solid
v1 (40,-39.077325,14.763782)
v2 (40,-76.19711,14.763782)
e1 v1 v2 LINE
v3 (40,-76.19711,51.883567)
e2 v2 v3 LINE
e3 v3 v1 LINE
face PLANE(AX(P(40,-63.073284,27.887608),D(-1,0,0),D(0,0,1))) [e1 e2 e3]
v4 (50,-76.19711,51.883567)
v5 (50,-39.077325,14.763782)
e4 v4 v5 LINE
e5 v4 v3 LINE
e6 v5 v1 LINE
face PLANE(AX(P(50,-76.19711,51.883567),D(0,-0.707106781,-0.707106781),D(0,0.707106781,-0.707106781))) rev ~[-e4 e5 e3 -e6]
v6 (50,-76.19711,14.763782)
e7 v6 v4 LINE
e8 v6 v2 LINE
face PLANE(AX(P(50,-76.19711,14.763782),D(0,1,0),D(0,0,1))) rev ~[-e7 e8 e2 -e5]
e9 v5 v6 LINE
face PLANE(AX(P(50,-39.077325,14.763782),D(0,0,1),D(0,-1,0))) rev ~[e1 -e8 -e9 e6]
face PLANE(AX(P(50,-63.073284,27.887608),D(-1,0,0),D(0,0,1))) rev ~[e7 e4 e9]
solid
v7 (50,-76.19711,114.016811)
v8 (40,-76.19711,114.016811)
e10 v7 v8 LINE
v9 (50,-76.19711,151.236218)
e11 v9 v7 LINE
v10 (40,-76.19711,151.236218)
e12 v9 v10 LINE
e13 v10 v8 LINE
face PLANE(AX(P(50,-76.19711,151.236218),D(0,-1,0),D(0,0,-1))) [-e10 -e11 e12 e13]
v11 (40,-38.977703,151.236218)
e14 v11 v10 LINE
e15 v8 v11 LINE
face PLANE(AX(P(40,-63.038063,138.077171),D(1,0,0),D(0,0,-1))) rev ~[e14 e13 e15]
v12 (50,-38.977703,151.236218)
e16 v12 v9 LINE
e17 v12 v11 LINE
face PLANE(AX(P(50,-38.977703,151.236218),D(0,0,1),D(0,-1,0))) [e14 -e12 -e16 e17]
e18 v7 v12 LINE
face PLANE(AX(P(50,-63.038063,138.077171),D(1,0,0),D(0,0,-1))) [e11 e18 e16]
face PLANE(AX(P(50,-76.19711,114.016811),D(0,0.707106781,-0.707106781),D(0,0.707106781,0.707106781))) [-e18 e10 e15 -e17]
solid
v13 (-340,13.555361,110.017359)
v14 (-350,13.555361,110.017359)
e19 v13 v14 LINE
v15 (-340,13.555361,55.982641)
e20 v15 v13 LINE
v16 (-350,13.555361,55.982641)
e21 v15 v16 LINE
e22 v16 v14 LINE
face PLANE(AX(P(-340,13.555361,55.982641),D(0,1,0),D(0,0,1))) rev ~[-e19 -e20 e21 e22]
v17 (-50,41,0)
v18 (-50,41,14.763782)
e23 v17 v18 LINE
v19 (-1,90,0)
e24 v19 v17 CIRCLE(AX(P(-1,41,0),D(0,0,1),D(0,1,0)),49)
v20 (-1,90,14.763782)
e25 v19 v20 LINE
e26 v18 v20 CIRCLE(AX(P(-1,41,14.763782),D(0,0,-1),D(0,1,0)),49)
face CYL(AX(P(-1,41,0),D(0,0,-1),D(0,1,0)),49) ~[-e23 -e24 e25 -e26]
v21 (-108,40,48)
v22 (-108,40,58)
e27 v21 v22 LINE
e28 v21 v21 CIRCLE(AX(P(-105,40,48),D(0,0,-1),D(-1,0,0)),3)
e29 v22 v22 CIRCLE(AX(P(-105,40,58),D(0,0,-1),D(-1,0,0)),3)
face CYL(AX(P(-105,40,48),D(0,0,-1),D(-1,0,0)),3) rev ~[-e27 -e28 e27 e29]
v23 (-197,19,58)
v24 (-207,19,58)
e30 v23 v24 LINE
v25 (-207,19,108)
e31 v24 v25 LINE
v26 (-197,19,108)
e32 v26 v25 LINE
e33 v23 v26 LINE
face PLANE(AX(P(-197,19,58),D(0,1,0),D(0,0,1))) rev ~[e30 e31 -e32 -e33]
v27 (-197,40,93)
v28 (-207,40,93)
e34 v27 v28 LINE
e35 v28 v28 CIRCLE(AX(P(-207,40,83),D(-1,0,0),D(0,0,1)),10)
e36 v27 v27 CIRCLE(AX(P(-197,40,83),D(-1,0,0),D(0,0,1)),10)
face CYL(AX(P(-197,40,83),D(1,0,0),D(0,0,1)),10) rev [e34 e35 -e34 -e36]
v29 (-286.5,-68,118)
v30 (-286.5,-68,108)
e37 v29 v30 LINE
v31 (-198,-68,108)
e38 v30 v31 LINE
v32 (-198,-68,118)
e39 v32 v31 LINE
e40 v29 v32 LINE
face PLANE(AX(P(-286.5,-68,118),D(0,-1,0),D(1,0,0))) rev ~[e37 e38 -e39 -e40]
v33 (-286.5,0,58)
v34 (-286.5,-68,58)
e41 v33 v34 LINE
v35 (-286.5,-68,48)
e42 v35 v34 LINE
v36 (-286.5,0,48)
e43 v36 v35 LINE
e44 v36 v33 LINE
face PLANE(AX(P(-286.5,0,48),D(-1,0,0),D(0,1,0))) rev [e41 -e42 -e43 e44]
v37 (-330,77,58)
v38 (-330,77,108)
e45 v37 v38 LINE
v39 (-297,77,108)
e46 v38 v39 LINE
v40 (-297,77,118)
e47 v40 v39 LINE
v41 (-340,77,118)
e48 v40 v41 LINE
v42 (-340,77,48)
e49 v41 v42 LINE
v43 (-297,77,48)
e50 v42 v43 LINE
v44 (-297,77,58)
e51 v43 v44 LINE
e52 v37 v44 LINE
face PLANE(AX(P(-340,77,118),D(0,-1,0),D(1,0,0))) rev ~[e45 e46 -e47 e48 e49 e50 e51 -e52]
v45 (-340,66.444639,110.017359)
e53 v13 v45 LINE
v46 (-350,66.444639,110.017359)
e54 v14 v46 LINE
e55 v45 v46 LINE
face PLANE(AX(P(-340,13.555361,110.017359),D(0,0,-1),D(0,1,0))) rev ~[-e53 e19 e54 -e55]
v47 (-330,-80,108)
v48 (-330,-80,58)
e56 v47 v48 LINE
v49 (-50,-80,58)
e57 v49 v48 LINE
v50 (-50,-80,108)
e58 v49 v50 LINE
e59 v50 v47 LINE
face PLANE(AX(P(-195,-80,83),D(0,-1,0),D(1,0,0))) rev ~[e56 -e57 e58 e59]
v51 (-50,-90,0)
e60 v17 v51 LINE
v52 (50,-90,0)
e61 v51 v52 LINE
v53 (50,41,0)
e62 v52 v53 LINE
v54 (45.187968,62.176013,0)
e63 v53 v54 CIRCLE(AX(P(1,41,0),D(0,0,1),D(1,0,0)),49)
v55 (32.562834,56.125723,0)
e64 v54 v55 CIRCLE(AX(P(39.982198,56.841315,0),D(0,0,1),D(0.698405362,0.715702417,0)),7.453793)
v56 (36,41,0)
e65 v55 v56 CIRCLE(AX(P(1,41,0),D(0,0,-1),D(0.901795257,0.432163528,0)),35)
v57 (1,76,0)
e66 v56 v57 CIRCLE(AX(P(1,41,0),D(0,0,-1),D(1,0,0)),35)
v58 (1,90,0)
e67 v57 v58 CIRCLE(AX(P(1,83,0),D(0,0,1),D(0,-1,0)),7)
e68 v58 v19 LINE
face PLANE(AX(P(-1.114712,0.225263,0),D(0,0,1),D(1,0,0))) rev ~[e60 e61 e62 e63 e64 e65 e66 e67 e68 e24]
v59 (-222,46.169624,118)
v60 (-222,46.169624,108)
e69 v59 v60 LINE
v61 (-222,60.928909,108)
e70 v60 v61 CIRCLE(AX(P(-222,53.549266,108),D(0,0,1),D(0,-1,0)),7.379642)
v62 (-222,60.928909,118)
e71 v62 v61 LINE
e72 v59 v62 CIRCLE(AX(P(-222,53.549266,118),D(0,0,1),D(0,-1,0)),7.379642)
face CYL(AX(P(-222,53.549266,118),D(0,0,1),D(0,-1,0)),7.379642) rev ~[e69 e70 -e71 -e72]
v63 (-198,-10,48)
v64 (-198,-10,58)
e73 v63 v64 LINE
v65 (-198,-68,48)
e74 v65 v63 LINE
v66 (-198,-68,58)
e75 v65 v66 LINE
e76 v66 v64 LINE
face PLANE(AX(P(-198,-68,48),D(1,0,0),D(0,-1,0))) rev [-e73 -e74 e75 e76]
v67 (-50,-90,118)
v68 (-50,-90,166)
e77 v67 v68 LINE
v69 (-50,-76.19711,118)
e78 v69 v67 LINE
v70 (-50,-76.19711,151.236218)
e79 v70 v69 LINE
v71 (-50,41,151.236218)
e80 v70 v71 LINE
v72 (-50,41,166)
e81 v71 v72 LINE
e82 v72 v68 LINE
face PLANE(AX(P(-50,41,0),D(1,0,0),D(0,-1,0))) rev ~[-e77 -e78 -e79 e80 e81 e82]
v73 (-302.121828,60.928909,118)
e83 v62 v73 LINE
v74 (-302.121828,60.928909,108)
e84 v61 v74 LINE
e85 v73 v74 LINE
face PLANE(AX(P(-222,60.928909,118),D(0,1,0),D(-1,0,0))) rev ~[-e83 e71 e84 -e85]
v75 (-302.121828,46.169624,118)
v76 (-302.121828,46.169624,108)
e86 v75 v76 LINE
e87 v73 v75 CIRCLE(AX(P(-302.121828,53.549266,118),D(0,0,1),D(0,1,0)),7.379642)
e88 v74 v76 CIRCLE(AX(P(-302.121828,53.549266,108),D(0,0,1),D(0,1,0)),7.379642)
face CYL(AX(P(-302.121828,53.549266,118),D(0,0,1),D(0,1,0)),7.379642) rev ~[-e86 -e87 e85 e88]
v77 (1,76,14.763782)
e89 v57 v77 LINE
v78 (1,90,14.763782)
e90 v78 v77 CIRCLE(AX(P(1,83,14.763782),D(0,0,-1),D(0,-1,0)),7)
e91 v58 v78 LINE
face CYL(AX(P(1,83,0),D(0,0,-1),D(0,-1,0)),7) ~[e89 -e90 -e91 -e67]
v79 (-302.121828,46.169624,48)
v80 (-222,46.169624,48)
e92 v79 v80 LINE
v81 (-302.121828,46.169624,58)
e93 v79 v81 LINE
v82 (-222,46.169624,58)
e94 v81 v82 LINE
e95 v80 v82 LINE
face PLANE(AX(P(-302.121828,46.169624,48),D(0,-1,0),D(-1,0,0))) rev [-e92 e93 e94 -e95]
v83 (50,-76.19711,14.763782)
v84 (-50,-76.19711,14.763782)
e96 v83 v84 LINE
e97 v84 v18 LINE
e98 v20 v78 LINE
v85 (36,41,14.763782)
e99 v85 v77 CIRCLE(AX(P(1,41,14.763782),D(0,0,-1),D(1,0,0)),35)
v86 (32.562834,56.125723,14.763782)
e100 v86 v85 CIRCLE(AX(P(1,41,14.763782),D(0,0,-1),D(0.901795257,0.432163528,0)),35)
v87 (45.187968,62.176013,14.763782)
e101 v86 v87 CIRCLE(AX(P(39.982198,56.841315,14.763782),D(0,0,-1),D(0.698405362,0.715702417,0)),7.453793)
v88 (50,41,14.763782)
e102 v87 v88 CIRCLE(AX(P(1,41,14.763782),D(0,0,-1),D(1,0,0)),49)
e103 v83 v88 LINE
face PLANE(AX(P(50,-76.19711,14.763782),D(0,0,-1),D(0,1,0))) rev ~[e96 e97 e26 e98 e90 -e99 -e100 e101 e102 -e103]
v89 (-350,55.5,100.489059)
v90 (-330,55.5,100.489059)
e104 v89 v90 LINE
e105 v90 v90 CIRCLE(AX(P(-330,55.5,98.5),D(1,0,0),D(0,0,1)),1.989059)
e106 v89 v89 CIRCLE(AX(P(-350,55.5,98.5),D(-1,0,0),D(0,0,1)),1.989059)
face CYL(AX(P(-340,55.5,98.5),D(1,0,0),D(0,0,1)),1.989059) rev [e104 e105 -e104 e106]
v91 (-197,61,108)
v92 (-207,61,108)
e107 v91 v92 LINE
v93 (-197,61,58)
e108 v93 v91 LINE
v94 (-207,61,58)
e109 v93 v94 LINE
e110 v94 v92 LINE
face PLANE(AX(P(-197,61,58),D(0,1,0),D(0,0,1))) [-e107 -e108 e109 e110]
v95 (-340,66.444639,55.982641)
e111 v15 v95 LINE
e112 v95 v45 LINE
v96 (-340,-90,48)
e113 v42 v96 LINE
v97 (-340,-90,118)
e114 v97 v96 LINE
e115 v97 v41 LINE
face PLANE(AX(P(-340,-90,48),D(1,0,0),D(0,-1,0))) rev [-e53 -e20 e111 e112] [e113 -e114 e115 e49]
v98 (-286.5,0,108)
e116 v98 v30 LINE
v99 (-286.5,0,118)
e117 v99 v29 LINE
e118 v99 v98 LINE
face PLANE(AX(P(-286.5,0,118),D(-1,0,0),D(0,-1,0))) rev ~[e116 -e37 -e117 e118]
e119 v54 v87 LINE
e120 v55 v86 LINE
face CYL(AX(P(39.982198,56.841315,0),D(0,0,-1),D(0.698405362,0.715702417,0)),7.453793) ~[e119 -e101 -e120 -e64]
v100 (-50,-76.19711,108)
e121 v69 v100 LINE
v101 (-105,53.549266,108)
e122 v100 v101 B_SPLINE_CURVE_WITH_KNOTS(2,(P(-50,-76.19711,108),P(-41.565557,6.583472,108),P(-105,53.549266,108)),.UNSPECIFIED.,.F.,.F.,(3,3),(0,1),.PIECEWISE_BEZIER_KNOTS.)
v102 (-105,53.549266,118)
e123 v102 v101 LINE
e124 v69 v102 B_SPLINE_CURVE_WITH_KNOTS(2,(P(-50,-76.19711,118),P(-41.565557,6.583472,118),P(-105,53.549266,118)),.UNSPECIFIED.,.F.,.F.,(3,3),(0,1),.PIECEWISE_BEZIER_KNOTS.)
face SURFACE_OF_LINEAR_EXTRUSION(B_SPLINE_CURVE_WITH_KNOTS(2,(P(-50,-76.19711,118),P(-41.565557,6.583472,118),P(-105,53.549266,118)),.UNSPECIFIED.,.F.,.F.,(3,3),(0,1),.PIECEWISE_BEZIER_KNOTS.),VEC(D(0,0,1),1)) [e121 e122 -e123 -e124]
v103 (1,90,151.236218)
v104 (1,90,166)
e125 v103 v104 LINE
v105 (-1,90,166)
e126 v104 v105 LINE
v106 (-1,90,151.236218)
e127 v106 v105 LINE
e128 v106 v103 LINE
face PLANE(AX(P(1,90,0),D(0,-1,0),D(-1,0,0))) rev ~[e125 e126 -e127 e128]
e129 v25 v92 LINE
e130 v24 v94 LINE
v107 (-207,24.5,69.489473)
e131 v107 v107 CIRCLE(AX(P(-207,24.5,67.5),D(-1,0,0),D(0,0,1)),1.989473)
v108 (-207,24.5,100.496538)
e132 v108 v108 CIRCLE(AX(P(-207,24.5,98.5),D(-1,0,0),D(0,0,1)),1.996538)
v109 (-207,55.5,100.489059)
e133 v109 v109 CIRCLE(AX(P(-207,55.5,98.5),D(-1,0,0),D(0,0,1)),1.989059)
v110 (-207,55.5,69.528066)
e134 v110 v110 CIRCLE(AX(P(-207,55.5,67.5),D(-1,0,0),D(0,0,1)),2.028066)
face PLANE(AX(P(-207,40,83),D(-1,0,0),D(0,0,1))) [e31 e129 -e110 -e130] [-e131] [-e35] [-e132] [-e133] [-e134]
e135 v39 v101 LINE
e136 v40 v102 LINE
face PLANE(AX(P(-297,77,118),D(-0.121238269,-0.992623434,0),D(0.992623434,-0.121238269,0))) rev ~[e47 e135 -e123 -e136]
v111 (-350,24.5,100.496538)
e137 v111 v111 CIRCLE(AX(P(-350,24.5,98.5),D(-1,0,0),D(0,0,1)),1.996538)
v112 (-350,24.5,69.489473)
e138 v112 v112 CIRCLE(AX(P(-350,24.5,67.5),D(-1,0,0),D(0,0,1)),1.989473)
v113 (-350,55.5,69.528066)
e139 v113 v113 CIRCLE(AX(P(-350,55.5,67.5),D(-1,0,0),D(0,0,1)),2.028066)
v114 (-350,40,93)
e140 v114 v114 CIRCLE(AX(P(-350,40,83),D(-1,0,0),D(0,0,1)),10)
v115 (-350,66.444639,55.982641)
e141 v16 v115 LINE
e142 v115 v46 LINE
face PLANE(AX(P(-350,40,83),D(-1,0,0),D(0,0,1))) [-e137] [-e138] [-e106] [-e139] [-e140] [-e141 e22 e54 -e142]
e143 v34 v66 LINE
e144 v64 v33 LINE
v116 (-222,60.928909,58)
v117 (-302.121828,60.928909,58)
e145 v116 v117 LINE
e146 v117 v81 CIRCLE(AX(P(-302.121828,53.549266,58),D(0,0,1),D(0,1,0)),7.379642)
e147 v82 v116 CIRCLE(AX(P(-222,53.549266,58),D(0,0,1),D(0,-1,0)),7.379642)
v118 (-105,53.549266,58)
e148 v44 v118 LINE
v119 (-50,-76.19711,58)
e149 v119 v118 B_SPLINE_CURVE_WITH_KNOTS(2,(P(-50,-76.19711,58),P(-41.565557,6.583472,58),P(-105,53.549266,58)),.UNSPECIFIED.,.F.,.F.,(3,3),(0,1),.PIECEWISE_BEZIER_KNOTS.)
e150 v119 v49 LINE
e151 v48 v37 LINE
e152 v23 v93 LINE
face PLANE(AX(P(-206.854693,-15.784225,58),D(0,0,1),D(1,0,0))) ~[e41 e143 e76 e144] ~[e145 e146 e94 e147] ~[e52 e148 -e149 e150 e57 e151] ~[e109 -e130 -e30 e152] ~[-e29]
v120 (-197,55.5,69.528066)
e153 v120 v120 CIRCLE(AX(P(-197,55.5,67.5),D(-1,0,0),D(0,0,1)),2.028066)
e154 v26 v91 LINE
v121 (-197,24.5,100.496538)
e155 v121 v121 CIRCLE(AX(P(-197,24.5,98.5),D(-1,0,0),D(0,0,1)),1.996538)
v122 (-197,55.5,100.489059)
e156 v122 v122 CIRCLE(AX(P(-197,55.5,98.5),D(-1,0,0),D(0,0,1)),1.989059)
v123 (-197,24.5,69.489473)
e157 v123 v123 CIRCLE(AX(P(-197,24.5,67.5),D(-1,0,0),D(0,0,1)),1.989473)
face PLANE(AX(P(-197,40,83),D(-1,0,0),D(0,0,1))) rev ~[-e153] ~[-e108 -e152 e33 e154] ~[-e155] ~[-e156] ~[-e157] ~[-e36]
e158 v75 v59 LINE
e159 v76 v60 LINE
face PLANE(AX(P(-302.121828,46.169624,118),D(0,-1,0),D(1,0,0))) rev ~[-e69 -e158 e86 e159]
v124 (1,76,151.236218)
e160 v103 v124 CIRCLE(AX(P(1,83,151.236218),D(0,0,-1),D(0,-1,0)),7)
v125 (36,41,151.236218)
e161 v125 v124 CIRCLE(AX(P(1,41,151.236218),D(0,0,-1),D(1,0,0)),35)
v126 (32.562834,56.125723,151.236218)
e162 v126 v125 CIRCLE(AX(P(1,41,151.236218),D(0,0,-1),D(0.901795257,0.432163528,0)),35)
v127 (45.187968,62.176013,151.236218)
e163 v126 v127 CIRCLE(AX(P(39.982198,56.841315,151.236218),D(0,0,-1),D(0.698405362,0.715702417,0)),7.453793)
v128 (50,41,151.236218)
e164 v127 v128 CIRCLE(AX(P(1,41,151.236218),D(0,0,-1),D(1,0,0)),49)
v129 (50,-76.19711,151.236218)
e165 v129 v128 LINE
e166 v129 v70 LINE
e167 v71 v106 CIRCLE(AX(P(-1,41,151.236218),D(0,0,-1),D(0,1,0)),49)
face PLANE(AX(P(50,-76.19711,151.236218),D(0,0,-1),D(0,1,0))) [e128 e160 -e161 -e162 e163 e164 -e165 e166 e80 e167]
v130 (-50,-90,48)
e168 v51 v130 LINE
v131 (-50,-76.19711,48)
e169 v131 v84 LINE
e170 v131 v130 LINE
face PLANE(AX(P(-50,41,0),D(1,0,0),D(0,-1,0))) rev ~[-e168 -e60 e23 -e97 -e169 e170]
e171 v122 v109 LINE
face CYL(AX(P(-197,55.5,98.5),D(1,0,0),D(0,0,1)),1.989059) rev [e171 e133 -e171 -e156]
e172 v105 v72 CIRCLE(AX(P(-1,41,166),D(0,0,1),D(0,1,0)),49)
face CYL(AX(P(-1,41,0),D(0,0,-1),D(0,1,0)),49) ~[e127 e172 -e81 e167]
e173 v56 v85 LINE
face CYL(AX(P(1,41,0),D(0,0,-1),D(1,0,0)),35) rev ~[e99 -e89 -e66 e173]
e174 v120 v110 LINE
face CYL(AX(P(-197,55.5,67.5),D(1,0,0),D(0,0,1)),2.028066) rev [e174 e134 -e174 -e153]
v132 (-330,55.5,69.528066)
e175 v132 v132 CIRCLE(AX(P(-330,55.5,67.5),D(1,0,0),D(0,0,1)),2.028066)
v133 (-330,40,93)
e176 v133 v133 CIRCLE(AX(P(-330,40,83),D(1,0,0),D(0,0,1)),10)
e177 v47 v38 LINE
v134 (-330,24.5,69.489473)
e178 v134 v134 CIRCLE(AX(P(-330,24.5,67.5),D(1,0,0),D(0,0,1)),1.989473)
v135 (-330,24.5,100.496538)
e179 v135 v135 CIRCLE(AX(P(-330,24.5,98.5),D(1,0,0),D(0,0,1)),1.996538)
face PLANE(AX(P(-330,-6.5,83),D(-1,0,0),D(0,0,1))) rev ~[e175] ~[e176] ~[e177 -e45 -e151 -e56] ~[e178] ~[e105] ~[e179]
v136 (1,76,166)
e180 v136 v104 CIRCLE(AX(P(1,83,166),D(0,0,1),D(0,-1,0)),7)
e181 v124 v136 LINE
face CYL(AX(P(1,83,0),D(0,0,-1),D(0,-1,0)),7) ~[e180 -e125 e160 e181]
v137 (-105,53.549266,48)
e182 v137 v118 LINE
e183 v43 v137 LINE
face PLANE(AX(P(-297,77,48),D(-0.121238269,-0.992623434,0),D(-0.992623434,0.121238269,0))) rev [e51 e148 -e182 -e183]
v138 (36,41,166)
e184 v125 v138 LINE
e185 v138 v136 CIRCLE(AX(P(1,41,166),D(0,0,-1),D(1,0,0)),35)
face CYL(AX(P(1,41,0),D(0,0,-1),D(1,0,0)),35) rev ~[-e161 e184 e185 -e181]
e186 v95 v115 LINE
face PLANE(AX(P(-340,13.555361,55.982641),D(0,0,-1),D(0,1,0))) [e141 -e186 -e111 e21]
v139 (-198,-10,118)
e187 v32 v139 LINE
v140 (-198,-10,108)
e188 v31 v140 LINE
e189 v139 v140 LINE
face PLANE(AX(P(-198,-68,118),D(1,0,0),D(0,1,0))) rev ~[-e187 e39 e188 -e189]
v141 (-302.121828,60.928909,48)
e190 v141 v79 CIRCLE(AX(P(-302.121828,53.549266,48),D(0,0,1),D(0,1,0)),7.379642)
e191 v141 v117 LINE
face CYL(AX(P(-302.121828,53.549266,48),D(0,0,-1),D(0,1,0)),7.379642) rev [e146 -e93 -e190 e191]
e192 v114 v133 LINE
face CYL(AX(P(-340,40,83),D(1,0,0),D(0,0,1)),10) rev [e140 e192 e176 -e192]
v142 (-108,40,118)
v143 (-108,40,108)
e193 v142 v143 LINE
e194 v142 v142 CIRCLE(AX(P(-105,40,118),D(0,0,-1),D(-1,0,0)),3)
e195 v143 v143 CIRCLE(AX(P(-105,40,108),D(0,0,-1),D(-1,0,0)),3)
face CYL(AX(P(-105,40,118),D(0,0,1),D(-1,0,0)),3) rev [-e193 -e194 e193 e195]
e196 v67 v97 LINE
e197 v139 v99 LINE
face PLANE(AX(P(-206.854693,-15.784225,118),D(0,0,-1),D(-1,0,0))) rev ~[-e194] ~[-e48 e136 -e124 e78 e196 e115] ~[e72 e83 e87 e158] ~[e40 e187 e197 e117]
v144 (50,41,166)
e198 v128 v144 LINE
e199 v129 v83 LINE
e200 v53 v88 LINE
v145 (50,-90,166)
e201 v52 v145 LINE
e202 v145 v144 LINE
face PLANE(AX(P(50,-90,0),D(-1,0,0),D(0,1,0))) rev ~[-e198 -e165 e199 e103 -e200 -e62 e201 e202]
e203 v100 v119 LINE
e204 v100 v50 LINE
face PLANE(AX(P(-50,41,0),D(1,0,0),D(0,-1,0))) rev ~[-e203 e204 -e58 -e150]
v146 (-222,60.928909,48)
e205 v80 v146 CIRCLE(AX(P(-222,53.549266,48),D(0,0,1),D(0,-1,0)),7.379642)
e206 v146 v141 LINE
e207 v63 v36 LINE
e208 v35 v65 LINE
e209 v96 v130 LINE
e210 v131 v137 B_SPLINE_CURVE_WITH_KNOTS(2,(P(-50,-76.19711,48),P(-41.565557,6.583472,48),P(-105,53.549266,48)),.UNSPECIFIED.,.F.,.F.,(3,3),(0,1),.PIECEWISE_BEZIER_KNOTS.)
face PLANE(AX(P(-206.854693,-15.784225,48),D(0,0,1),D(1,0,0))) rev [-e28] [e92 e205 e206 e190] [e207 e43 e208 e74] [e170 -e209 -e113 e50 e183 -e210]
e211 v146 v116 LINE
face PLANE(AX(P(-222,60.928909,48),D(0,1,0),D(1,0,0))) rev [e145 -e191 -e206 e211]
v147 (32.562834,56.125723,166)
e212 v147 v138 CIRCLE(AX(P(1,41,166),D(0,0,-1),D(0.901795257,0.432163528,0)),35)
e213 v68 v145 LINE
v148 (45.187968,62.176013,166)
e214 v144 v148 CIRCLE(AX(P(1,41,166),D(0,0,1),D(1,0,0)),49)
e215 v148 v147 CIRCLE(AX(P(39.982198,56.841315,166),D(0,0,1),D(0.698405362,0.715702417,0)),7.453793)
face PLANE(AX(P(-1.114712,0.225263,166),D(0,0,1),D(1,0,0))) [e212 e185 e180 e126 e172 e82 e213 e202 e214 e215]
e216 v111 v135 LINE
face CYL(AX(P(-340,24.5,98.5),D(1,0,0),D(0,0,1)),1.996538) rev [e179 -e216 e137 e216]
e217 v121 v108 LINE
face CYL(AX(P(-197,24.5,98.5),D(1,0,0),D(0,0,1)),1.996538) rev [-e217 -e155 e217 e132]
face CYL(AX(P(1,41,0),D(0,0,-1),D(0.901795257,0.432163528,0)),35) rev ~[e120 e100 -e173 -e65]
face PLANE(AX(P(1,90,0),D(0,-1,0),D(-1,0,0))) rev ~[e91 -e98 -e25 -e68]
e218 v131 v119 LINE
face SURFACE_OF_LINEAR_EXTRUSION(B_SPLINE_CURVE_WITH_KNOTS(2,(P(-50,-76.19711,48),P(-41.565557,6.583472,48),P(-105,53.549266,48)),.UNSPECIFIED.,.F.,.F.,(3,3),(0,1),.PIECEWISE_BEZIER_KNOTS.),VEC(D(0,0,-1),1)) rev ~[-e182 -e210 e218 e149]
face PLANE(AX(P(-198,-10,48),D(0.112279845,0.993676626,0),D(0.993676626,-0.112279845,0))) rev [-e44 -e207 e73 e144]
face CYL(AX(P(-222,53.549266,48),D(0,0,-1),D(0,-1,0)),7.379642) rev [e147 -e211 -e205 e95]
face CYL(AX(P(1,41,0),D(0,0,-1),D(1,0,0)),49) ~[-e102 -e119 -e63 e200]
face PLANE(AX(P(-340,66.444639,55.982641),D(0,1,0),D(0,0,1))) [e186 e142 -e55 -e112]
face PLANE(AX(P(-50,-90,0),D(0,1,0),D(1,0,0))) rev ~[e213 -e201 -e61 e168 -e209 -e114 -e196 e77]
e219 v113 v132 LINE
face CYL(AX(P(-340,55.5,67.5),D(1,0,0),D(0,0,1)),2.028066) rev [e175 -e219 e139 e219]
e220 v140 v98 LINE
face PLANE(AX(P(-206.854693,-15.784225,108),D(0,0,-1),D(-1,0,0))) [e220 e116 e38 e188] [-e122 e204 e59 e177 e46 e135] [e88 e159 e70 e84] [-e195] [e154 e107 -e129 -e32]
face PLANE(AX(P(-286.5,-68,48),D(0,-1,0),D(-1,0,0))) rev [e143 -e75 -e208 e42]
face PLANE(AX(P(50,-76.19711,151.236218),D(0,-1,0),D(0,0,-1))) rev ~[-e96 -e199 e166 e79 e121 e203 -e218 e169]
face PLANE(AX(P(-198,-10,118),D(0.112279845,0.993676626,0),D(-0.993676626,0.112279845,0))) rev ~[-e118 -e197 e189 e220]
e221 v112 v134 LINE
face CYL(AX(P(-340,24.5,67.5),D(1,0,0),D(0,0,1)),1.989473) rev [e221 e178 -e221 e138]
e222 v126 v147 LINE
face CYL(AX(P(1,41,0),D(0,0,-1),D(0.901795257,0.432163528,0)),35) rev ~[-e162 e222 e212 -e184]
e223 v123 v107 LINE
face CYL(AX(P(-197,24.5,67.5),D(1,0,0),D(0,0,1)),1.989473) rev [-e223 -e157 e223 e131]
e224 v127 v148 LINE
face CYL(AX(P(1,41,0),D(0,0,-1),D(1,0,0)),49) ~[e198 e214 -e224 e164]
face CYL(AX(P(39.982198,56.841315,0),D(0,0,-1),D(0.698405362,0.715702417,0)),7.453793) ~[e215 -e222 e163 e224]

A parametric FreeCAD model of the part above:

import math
import FreeCAD as App
import Part
import Sketcher
from FreeCAD import Vector

doc = App.newDocument("Part")
params = doc.addObject("Spreadsheet::Sheet", "Params")
for row, (alias, value) in enumerate([
    ("sketch1_radius", "49 mm"),
    ("sketch1_radius2", "35 mm"),
    ("sketch1_width", "100 mm"),
    ("sketch1_height", "131 mm"),
    ("pad1_length", "166 mm"),
    ("sketch3_diameter", "6 mm"),
    ("sketch3_width", "43 mm"),
    ("sketch3_width2", "290 mm"),
    ("sketch3_height", "167 mm"),
    ("sketch3_height2", "58 mm"),
    ("pad2_length", "10 mm"),
    ("sketch4_width", "290 mm"),
    ("sketch4_height", "70 mm"),
    ("pad3_length", "10 mm"),
    ("sketch5_width", "167 mm"),
    ("sketch5_height", "70 mm"),
    ("pad4_length", "10 mm"),
    ("sketch6_diameter", "20 mm"),
    ("sketch6_width", "42 mm"),
    ("sketch6_height", "50 mm"),
    ("pad5_length", "10 mm"),
    ("sketch7_diameter", "20 mm"),
    ("sketch8_diameter", "20 mm"),
    ("pad6_length", "10 mm"),
    ("pad7_length", "10 mm"),
    ("pad8_length", "10 mm"),
], start=1):
    params.set(f"A{row}", alias)
    params.set(f"B{row}", "=" + value)
    params.setAlias(f"B{row}", alias)

body = doc.addObject("PartDesign::Body", "Body")

sketch1 = doc.addObject("Sketcher::SketchObject", "Sketch")
body.addObject(sketch1)
sketch1.AttachmentSupport = (doc.XY_Plane, [""])
sketch1.MapMode = "FlatFace"
sketch1.addGeometry([
    Part.LineSegment(Vector(-50, -90, 0), Vector(50, -90, 0)),
    Part.LineSegment(Vector(50, -90, 0), Vector(50, 41, 0)),
    Part.ArcOfCircle(Part.Circle(Vector(1, 41, 0), Vector(0, 0, 1), 49), math.radians(0), math.radians(25.604942)),
    Part.ArcOfCircle(Part.Circle(Vector(39.982198, 56.841315, 0), Vector(0, 0, 1), 7.453793), math.radians(45.700794), math.radians(185.509089)),
    Part.ArcOfCircle(Part.Circle(Vector(1, 41, 0), Vector(0, 0, 1), 35), math.radians(0), math.radians(25.604942)),
    Part.ArcOfCircle(Part.Circle(Vector(1, 41, 0), Vector(0, 0, 1), 35), math.radians(90), math.radians(360)),
    Part.ArcOfCircle(Part.Circle(Vector(1, 83, 0), Vector(0, 0, 1), 7), math.radians(-90), math.radians(90)),
    Part.LineSegment(Vector(1, 90, 0), Vector(-1, 90, 0)),
    Part.ArcOfCircle(Part.Circle(Vector(-1, 41, 0), Vector(0, 0, 1), 49), math.radians(90), math.radians(180)),
    Part.LineSegment(Vector(-50, 41, 0), Vector(-50, -90, 0)),
], False)
sketch1.addConstraint([
    Sketcher.Constraint("Coincident", 0, 2, 1, 1),
    Sketcher.Constraint("Tangent", 1, 2, 2, 1),
    Sketcher.Constraint("Coincident", 2, 2, 3, 1),
    Sketcher.Constraint("Coincident", 3, 2, 4, 2),
    Sketcher.Constraint("Tangent", 4, 1, 5, 2),
    Sketcher.Constraint("Tangent", 5, 1, 6, 1),
    Sketcher.Constraint("Tangent", 6, 2, 7, 1),
    Sketcher.Constraint("Tangent", 7, 2, 8, 1),
    Sketcher.Constraint("Tangent", 8, 2, 9, 1),
    Sketcher.Constraint("Coincident", 9, 2, 0, 1),
    Sketcher.Constraint("Horizontal", 0),
    Sketcher.Constraint("Vertical", 1),
    Sketcher.Constraint("Horizontal", 7),
    Sketcher.Constraint("Vertical", 9),
    Sketcher.Constraint("Coincident", 4, 3, 2, 3),
    Sketcher.Constraint("Equal", 4, 5),
    Sketcher.Constraint("Equal", 2, 8),
    Sketcher.Constraint("Symmetric", 2, 3, 8, 3, -2),
    Sketcher.Constraint("Horizontal", 1, 2, 4, 1),
    Sketcher.Constraint("Vertical", 5, 3, 6, 3),
    Sketcher.Constraint("Radius", 2, 49.0),
    Sketcher.Constraint("Radius", 4, 35.0),
    Sketcher.Constraint("DistanceX", 0, 1, 0, 2, 100.0),
    Sketcher.Constraint("DistanceY", 1, 1, 1, 2, 131.0),
    Sketcher.Constraint("DistanceY", -1, 1, 2, 3, 41.0),
    Sketcher.Constraint("Radius", 3, 7.453793),
    Sketcher.Constraint("DistanceX", -1, 1, 3, 3, 39.982198),
    Sketcher.Constraint("DistanceY", 3, 3, 2, 2, 5.334698),
])
sketch1.setExpression("Constraints[20]", "Params.sketch1_radius")
sketch1.setExpression("Constraints[21]", "Params.sketch1_radius2")
sketch1.setExpression("Constraints[22]", "Params.sketch1_width")
sketch1.setExpression("Constraints[23]", "Params.sketch1_height")
pad1 = doc.addObject("PartDesign::Pad", "Pad")
body.addObject(pad1)
pad1.Profile = sketch1
pad1.setExpression("Length", "Params.pad1_length")

sketch2 = doc.addObject("Sketcher::SketchObject", "Sketch001")
body.addObject(sketch2)
sketch2.AttachmentSupport = (doc.YZ_Plane, [""])
sketch2.MapMode = "FlatFace"
sketch2.AttachmentOffset = App.Placement(Vector(0, 0, 50), App.Rotation())
sketch2.addGeometry([
    Part.LineSegment(Vector(256.19711, 151.236218, 0), Vector(-76.19711, 151.236218, 0)),
    Part.LineSegment(Vector(-76.19711, 151.236218, 0), Vector(-76.19711, 14.763782, 0)),
    Part.LineSegment(Vector(-76.19711, 14.763782, 0), Vector(256.19711, 14.763782, 0)),
    Part.LineSegment(Vector(256.19711, 14.763782, 0), Vector(256.19711, 151.236218, 0)),
], False)
sketch2.addConstraint([
    Sketcher.Constraint("Coincident", 0, 2, 1, 1),
    Sketcher.Constraint("Coincident", 1, 2, 2, 1),
    Sketcher.Constraint("Coincident", 2, 2, 3, 1),
    Sketcher.Constraint("Coincident", 3, 2, 0, 1),
    Sketcher.Constraint("Horizontal", 0),
    Sketcher.Constraint("Vertical", 1),
    Sketcher.Constraint("Horizontal", 2),
    Sketcher.Constraint("Vertical", 3),
    Sketcher.Constraint("DistanceX", 0, 2, 0, 1, 332.39422),
    Sketcher.Constraint("DistanceY", 1, 2, 1, 1, 136.472436),
    Sketcher.Constraint("DistanceX", 0, 2, -1, 1, 76.19711),
    Sketcher.Constraint("DistanceY", -1, 1, 0, 2, 151.236218),
])
pocket1 = doc.addObject("PartDesign::Pocket", "Pocket")
body.addObject(pocket1)
pocket1.Profile = sketch2
pocket1.Type = "ThroughAll"

sketch3 = doc.addObject("Sketcher::SketchObject", "Sketch002")
body.addObject(sketch3)
sketch3.AttachmentSupport = (doc.XY_Plane, [""])
sketch3.MapMode = "FlatFace"
sketch3.AttachmentOffset = App.Placement(Vector(0, 0, 118), App.Rotation())
sketch3.addGeometry([
    Part.LineSegment(Vector(-340, 77, 0), Vector(-297, 77, 0)),
    Part.LineSegment(Vector(-297, 77, 0), Vector(-105, 53.549266, 0)),
    Part.BSplineCurve([Vector(-50, -76.19711, 0), Vector(-41.565557, 6.583472, 0), Vector(-105, 53.549266, 0)], [3, 3], [0, 1], False, 2, [1, 1, 1], False),
    Part.LineSegment(Vector(-50, -76.19711, 0), Vector(-50, -90, 0)),
    Part.LineSegment(Vector(-50, -90, 0), Vector(-340, -90, 0)),
    Part.LineSegment(Vector(-340, -90, 0), Vector(-340, 77, 0)),
    Part.LineSegment(Vector(-286.5, -68, 0), Vector(-198, -68, 0)),
    Part.LineSegment(Vector(-198, -68, 0), Vector(-198, -10, 0)),
    Part.LineSegment(Vector(-198, -10, 0), Vector(-286.5, 0, 0)),
    Part.LineSegment(Vector(-286.5, 0, 0), Vector(-286.5, -68, 0)),
    Part.Circle(Vector(-105, 40, 0), Vector(0, 0, 1), 3),
    Part.LineSegment(Vector(-302.121828, 46.169624, 0), Vector(-222, 46.169624, 0)),
    Part.ArcOfCircle(Part.Circle(Vector(-222, 53.549266, 0), Vector(0, 0, 1), 7.379642), math.radians(-90), math.radians(90)),
    Part.LineSegment(Vector(-222, 60.928909, 0), Vector(-302.121828, 60.928909, 0)),
    Part.ArcOfCircle(Part.Circle(Vector(-302.121828, 53.549266, 0), Vector(0, 0, 1), 7.379642), math.radians(90), math.radians(270)),
], False)
sketch3.addConstraint([
    Sketcher.Constraint("Block", 2),
    Sketcher.Constraint("Coincident", 0, 2, 1, 1),
    Sketcher.Constraint("Coincident", 1, 2, 2, 2),
    Sketcher.Constraint("Coincident", 2, 1, 3, 1),
    Sketcher.Constraint("Coincident", 3, 2, 4, 1),
    Sketcher.Constraint("Coincident", 4, 2, 5, 1),
    Sketcher.Constraint("Coincident", 5, 2, 0, 1),
    Sketcher.Constraint("Coincident", 6, 2, 7, 1),
    Sketcher.Constraint("Coincident", 7, 2, 8, 1),
    Sketcher.Constraint("Coincident", 8, 2, 9, 1),
    Sketcher.Constraint("Coincident", 9, 2, 6, 1),
    Sketcher.Constraint("Tangent", 11, 2, 12, 1),
    Sketcher.Constraint("Tangent", 12, 2, 13, 1),
    Sketcher.Constraint("Tangent", 13, 2, 14, 1),
    Sketcher.Constraint("Tangent", 14, 2, 11, 1),
    Sketcher.Constraint("Horizontal", 0),
    Sketcher.Constraint("Vertical", 3),
    Sketcher.Constraint("Horizontal", 4),
    Sketcher.Constraint("Vertical", 5),
    Sketcher.Constraint("Horizontal", 6),
    Sketcher.Constraint("Vertical", 7),
    Sketcher.Constraint("Vertical", 9),
    Sketcher.Constraint("Horizontal", 11),
    Sketcher.Constraint("Horizontal", 13),
    Sketcher.Constraint("PointOnObject", 8, 2, -1),
    Sketcher.Constraint("Horizontal", 14, 3, 1, 2),
    Sketcher.Constraint("Vertical", 10, 3, 1, 2),
    Sketcher.Constraint("Diameter", 10, 6.0),
    Sketcher.Constraint("DistanceX", 0, 1, 0, 2, 43.0),
    Sketcher.Constraint("DistanceX", 4, 2, 4, 1, 290.0),
    Sketcher.Constraint("DistanceY", 5, 1, 5, 2, 167.0),
    Sketcher.Constraint("DistanceY", 7, 1, 7, 2, 58.0),
    Sketcher.Constraint("DistanceY", 9, 2, 9, 1, 68.0),
    Sketcher.Constraint("DistanceX", 6, 1, 6, 2, 88.5),
    Sketcher.Constraint("DistanceY", -1, 1, 10, 3, 40.0),
    Sketcher.Constraint("DistanceX", 12, 3, -1, 1, 222.0),
    Sketcher.Constraint("DistanceY", -1, 1, 0, 2, 77.0),
    Sketcher.Constraint("DistanceX", 6, 2, -1, 1, 198.0),
    Sketcher.Constraint("Radius", 12, 7.379642),
    Sketcher.Constraint("DistanceX", 11, 1, 11, 2, 80.121828),
])
sketch3.setExpression("Constraints[27]", "Params.sketch3_diameter")
sketch3.setExpression("Constraints[28]", "Params.sketch3_width")
sketch3.setExpression("Constraints[29]", "Params.sketch3_width2")
sketch3.setExpression("Constraints[30]", "Params.sketch3_height")
sketch3.setExpression("Constraints[31]", "Params.sketch3_height2")
pad2 = doc.addObject("PartDesign::Pad", "Pad001")
body.addObject(pad2)
pad2.Profile = sketch3
pad2.setExpression("Length", "Params.pad2_length")
pad2.Reversed = True
doc.recompute()

datumplane = doc.addObject("PartDesign::Plane", "DatumPlane")
body.addObject(datumplane)
datumplane.AttachmentSupport = (doc.XY_Plane, [""])
datumplane.MapMode = "FlatFace"
datumplane.AttachmentOffset = App.Placement(Vector(0, 0, 83), App.Rotation())
mirrored = doc.addObject("PartDesign::Mirrored", "Mirrored")
body.addObject(mirrored)
mirrored.Originals = [pad2]
mirrored.MirrorPlane = (datumplane, [""])
body.Tip = mirrored

sketch4 = doc.addObject("Sketcher::SketchObject", "Sketch003")
body.addObject(sketch4)
sketch4.AttachmentSupport = (doc.XZ_Plane, [""])
sketch4.MapMode = "FlatFace"
sketch4.AttachmentOffset = App.Placement(Vector(0, 0, 90), App.Rotation())
sketch4.addGeometry([
    Part.LineSegment(Vector(-340, 118, 0), Vector(-340, 48, 0)),
    Part.LineSegment(Vector(-340, 48, 0), Vector(-50, 48, 0)),
    Part.LineSegment(Vector(-50, 48, 0), Vector(-50, 118, 0)),
    Part.LineSegment(Vector(-50, 118, 0), Vector(-340, 118, 0)),
], False)
sketch4.addConstraint([
    Sketcher.Constraint("Coincident", 0, 2, 1, 1),
    Sketcher.Constraint("Coincident", 1, 2, 2, 1),
    Sketcher.Constraint("Coincident", 2, 2, 3, 1),
    Sketcher.Constraint("Coincident", 3, 2, 0, 1),
    Sketcher.Constraint("Vertical", 0),
    Sketcher.Constraint("Horizontal", 1),
    Sketcher.Constraint("Vertical", 2),
    Sketcher.Constraint("Horizontal", 3),
    Sketcher.Constraint("DistanceX", 1, 1, 1, 2, 290.0),
    Sketcher.Constraint("DistanceY", 0, 2, 0, 1, 70.0),
    Sketcher.Constraint("DistanceX", 0, 2, -1, 1, 340.0),
    Sketcher.Constraint("DistanceY", -1, 1, 0, 2, 48.0),
])
sketch4.setExpression("Constraints[8]", "Params.sketch4_width")
sketch4.setExpression("Constraints[9]", "Params.sketch4_height")
pad3 = doc.addObject("PartDesign::Pad", "Pad002")
body.addObject(pad3)
pad3.Profile = sketch4
pad3.setExpression("Length", "Params.pad3_length")
pad3.Reversed = True

sketch5 = doc.addObject("Sketcher::SketchObject", "Sketch004")
body.addObject(sketch5)
sketch5.AttachmentSupport = (doc.YZ_Plane, [""])
sketch5.MapMode = "FlatFace"
sketch5.AttachmentOffset = App.Placement(Vector(0, 0, -340), App.Rotation())
sketch5.addGeometry([
    Part.LineSegment(Vector(77, 48, 0), Vector(-90, 48, 0)),
    Part.LineSegment(Vector(-90, 48, 0), Vector(-90, 118, 0)),
    Part.LineSegment(Vector(-90, 118, 0), Vector(77, 118, 0)),
    Part.LineSegment(Vector(77, 118, 0), Vector(77, 48, 0)),
], False)
sketch5.addConstraint([
    Sketcher.Constraint("Coincident", 0, 2, 1, 1),
    Sketcher.Constraint("Coincident", 1, 2, 2, 1),
    Sketcher.Constraint("Coincident", 2, 2, 3, 1),
    Sketcher.Constraint("Coincident", 3, 2, 0, 1),
    Sketcher.Constraint("Horizontal", 0),
    Sketcher.Constraint("Vertical", 1),
    Sketcher.Constraint("Horizontal", 2),
    Sketcher.Constraint("Vertical", 3),
    Sketcher.Constraint("DistanceX", 0, 2, 0, 1, 167.0),
    Sketcher.Constraint("DistanceY", 1, 1, 1, 2, 70.0),
    Sketcher.Constraint("DistanceX", 0, 2, -1, 1, 90.0),
    Sketcher.Constraint("DistanceY", -1, 1, 0, 2, 48.0),
])
sketch5.setExpression("Constraints[8]", "Params.sketch5_width")
sketch5.setExpression("Constraints[9]", "Params.sketch5_height")
pad4 = doc.addObject("PartDesign::Pad", "Pad003")
body.addObject(pad4)
pad4.Profile = sketch5
pad4.setExpression("Length", "Params.pad4_length")

sketch6 = doc.addObject("Sketcher::SketchObject", "Sketch005")
body.addObject(sketch6)
sketch6.AttachmentSupport = (doc.YZ_Plane, [""])
sketch6.MapMode = "FlatFace"
sketch6.AttachmentOffset = App.Placement(Vector(0, 0, -197), App.Rotation())
sketch6.addGeometry([
    Part.LineSegment(Vector(61, 58, 0), Vector(19, 58, 0)),
    Part.LineSegment(Vector(19, 58, 0), Vector(19, 108, 0)),
    Part.LineSegment(Vector(19, 108, 0), Vector(61, 108, 0)),
    Part.LineSegment(Vector(61, 108, 0), Vector(61, 58, 0)),
    Part.Circle(Vector(24.5, 67.5, 0), Vector(0, 0, 1), 1.989473),
    Part.Circle(Vector(24.5, 98.5, 0), Vector(0, 0, 1), 1.996538),
    Part.Circle(Vector(40, 83, 0), Vector(0, 0, 1), 10),
    Part.Circle(Vector(55.5, 67.5, 0), Vector(0, 0, 1), 2.028066),
    Part.Circle(Vector(55.5, 98.5, 0), Vector(0, 0, 1), 1.989059),
], False)
sketch6.addConstraint([
    Sketcher.Constraint("Coincident", 0, 2, 1, 1),
    Sketcher.Constraint("Coincident", 1, 2, 2, 1),
    Sketcher.Constraint("Coincident", 2, 2, 3, 1),
    Sketcher.Constraint("Coincident", 3, 2, 0, 1),
    Sketcher.Constraint("Horizontal", 0),
    Sketcher.Constraint("Vertical", 1),
    Sketcher.Constraint("Horizontal", 2),
    Sketcher.Constraint("Vertical", 3),
    Sketcher.Constraint("Horizontal", 4, 3, 7, 3),
    Sketcher.Constraint("Horizontal", 5, 3, 8, 3),
    Sketcher.Constraint("Vertical", 4, 3, 5, 3),
    Sketcher.Constraint("Vertical", 7, 3, 8, 3),
    Sketcher.Constraint("Diameter", 6, 20.0),
    Sketcher.Constraint("DistanceX", 0, 2, 0, 1, 42.0),
    Sketcher.Constraint("DistanceY", 1, 1, 1, 2, 50.0),
    Sketcher.Constraint("DistanceX", -1, 1, 6, 3, 40.0),
    Sketcher.Constraint("DistanceY", -1, 1, 6, 3, 83.0),
    Sketcher.Constraint("DistanceX", -1, 1, 0, 2, 19.0),
    Sketcher.Constraint("DistanceY", -1, 1, 0, 2, 58.0),
    Sketcher.Constraint("DistanceY", 4, 3, 5, 3, 31.0),
    Sketcher.Constraint("DistanceX", 4, 3, 7, 3, 31.0),
    Sketcher.Constraint("DistanceX", -1, 1, 4, 3, 24.5),
    Sketcher.Constraint("DistanceY", -1, 1, 4, 3, 67.5),
    Sketcher.Constraint("Diameter", 4, 3.978947),
    Sketcher.Constraint("Diameter", 5, 3.993077),
    Sketcher.Constraint("Diameter", 7, 4.056132),
    Sketcher.Constraint("Diameter", 8, 3.978117),
])
sketch6.setExpression("Constraints[12]", "Params.sketch6_diameter")
sketch6.setExpression("Constraints[13]", "Params.sketch6_width")
sketch6.setExpression("Constraints[14]", "Params.sketch6_height")
pad5 = doc.addObject("PartDesign::Pad", "Pad004")
body.addObject(pad5)
pad5.Profile = sketch6
pad5.setExpression("Length", "Params.pad5_length")
pad5.Reversed = True

sketch7 = doc.addObject("Sketcher::SketchObject", "Sketch006")
body.addObject(sketch7)
sketch7.AttachmentSupport = (doc.YZ_Plane, [""])
sketch7.MapMode = "FlatFace"
sketch7.AttachmentOffset = App.Placement(Vector(0, 0, -330), App.Rotation())
sketch7.addGeometry([
    Part.Circle(Vector(24.5, 98.5, 0), Vector(0, 0, 1), 1.996538),
    Part.Circle(Vector(24.5, 67.5, 0), Vector(0, 0, 1), 1.989473),
    Part.Circle(Vector(55.5, 67.5, 0), Vector(0, 0, 1), 2.028066),
    Part.Circle(Vector(55.5, 98.5, 0), Vector(0, 0, 1), 1.989059),
    Part.Circle(Vector(40, 83, 0), Vector(0, 0, 1), 10),
], False)
sketch7.addConstraint([
    Sketcher.Constraint("Horizontal", 1, 3, 2, 3),
    Sketcher.Constraint("Horizontal", 0, 3, 3, 3),
    Sketcher.Constraint("Vertical", 0, 3, 1, 3),
    Sketcher.Constraint("Vertical", 2, 3, 3, 3),
    Sketcher.Constraint("Diameter", 4, 20.0),
    Sketcher.Constraint("DistanceX", -1, 1, 4, 3, 40.0),
    Sketcher.Constraint("DistanceY", -1, 1, 4, 3, 83.0),
    Sketcher.Constraint("DistanceY", 1, 3, 0, 3, 31.0),
    Sketcher.Constraint("DistanceX", 1, 3, 2, 3, 31.0),
    Sketcher.Constraint("DistanceX", -1, 1, 0, 3, 24.5),
    Sketcher.Constraint("DistanceY", -1, 1, 0, 3, 98.5),
    Sketcher.Constraint("Diameter", 0, 3.993077),
    Sketcher.Constraint("Diameter", 1, 3.978947),
    Sketcher.Constraint("Diameter", 2, 4.056132),
    Sketcher.Constraint("Diameter", 3, 3.978117),
])
sketch7.setExpression("Constraints[4]", "Params.sketch7_diameter")
pocket2 = doc.addObject("PartDesign::Pocket", "Pocket001")
body.addObject(pocket2)
pocket2.Profile = sketch7
pocket2.Type = "ThroughAll"

sketch8 = doc.addObject("Sketcher::SketchObject", "Sketch007")
body.addObject(sketch8)
sketch8.AttachmentSupport = (doc.YZ_Plane, [""])
sketch8.MapMode = "FlatFace"
sketch8.AttachmentOffset = App.Placement(Vector(0, 0, -340), App.Rotation())
sketch8.addGeometry([
    Part.LineSegment(Vector(66.444639, 55.982641, 0), Vector(13.555361, 55.982641, 0)),
    Part.LineSegment(Vector(13.555361, 55.982641, 0), Vector(13.555361, 110.017359, 0)),
    Part.LineSegment(Vector(13.555361, 110.017359, 0), Vector(66.444639, 110.017359, 0)),
    Part.LineSegment(Vector(66.444639, 110.017359, 0), Vector(66.444639, 55.982641, 0)),
    Part.Circle(Vector(24.5, 67.5, 0), Vector(0, 0, 1), 1.989473),
    Part.Circle(Vector(24.5, 98.5, 0), Vector(0, 0, 1), 1.996538),
    Part.Circle(Vector(40, 83, 0), Vector(0, 0, 1), 10),
    Part.Circle(Vector(55.5, 67.5, 0), Vector(0, 0, 1), 2.028066),
    Part.Circle(Vector(55.5, 98.5, 0), Vector(0, 0, 1), 1.989059),
], False)
sketch8.addConstraint([
    Sketcher.Constraint("Coincident", 0, 2, 1, 1),
    Sketcher.Constraint("Coincident", 1, 2, 2, 1),
    Sketcher.Constraint("Coincident", 2, 2, 3, 1),
    Sketcher.Constraint("Coincident", 3, 2, 0, 1),
    Sketcher.Constraint("Horizontal", 0),
    Sketcher.Constraint("Vertical", 1),
    Sketcher.Constraint("Horizontal", 2),
    Sketcher.Constraint("Vertical", 3),
    Sketcher.Constraint("Horizontal", 4, 3, 7, 3),
    Sketcher.Constraint("Horizontal", 5, 3, 8, 3),
    Sketcher.Constraint("Vertical", 4, 3, 5, 3),
    Sketcher.Constraint("Vertical", 7, 3, 8, 3),
    Sketcher.Constraint("Diameter", 6, 20.0),
    Sketcher.Constraint("DistanceX", -1, 1, 6, 3, 40.0),
    Sketcher.Constraint("DistanceY", -1, 1, 6, 3, 83.0),
    Sketcher.Constraint("DistanceY", 4, 3, 5, 3, 31.0),
    Sketcher.Constraint("DistanceX", 4, 3, 7, 3, 31.0),
    Sketcher.Constraint("DistanceX", -1, 1, 4, 3, 24.5),
    Sketcher.Constraint("DistanceY", -1, 1, 4, 3, 67.5),
    Sketcher.Constraint("Diameter", 4, 3.978947),
    Sketcher.Constraint("Diameter", 5, 3.993077),
    Sketcher.Constraint("Diameter", 7, 4.056132),
    Sketcher.Constraint("Diameter", 8, 3.978117),
    Sketcher.Constraint("DistanceY", 1, 1, 1, 2, 54.034719),
    Sketcher.Constraint("DistanceX", 0, 2, 0, 1, 52.889277),
    Sketcher.Constraint("DistanceX", -1, 1, 0, 2, 13.555361),
    Sketcher.Constraint("DistanceY", -1, 1, 0, 2, 55.982641),
])
sketch8.setExpression("Constraints[12]", "Params.sketch8_diameter")
pad6 = doc.addObject("PartDesign::Pad", "Pad005")
body.addObject(pad6)
pad6.Profile = sketch8
pad6.setExpression("Length", "Params.pad6_length")
pad6.Reversed = True
body2 = doc.addObject("PartDesign::Body", "Body001")

sketch9 = doc.addObject("Sketcher::SketchObject", "Sketch008")
body2.addObject(sketch9)
sketch9.AttachmentSupport = (doc.getObject("YZ_Plane001"), [""])
sketch9.MapMode = "FlatFace"
sketch9.AttachmentOffset = App.Placement(Vector(0, 0, 50), App.Rotation())
sketch9.addGeometry([
    Part.LineSegment(Vector(-76.19711, 151.236218, 0), Vector(-76.19711, 114.016811, 0)),
    Part.LineSegment(Vector(-76.19711, 114.016811, 0), Vector(-38.977703, 151.236218, 0)),
    Part.LineSegment(Vector(-38.977703, 151.236218, 0), Vector(-76.19711, 151.236218, 0)),
], False)
sketch9.addConstraint([
    Sketcher.Constraint("Coincident", 0, 2, 1, 1),
    Sketcher.Constraint("Coincident", 1, 2, 2, 1),
    Sketcher.Constraint("Coincident", 2, 2, 0, 1),
    Sketcher.Constraint("Vertical", 0),
    Sketcher.Constraint("Horizontal", 2),
    Sketcher.Constraint("Equal", 2, 0),
    Sketcher.Constraint("Distance", 1, 52.63619),
    Sketcher.Constraint("DistanceX", 0, 2, -1, 1, 76.19711),
    Sketcher.Constraint("DistanceY", -1, 1, 0, 2, 114.016811),
])
pad7 = doc.addObject("PartDesign::Pad", "Pad006")
body2.addObject(pad7)
pad7.Profile = sketch9
pad7.setExpression("Length", "Params.pad7_length")
pad7.Reversed = True
body3 = doc.addObject("PartDesign::Body", "Body002")

sketch10 = doc.addObject("Sketcher::SketchObject", "Sketch009")
body3.addObject(sketch10)
sketch10.AttachmentSupport = (doc.getObject("YZ_Plane002"), [""])
sketch10.MapMode = "FlatFace"
sketch10.AttachmentOffset = App.Placement(Vector(0, 0, 50), App.Rotation())
sketch10.addGeometry([
    Part.LineSegment(Vector(-76.19711, 51.883567, 0), Vector(-76.19711, 14.763782, 0)),
    Part.LineSegment(Vector(-76.19711, 14.763782, 0), Vector(-39.077325, 14.763782, 0)),
    Part.LineSegment(Vector(-39.077325, 14.763782, 0), Vector(-76.19711, 51.883567, 0)),
], False)
sketch10.addConstraint([
    Sketcher.Constraint("Coincident", 0, 2, 1, 1),
    Sketcher.Constraint("Coincident", 1, 2, 2, 1),
    Sketcher.Constraint("Coincident", 2, 2, 0, 1),
    Sketcher.Constraint("Vertical", 0),
    Sketcher.Constraint("Horizontal", 1),
    Sketcher.Constraint("Equal", 1, 0),
    Sketcher.Constraint("DistanceX", 1, 1, 1, 2, 37.119786),
    Sketcher.Constraint("DistanceX", 0, 2, -1, 1, 76.19711),
    Sketcher.Constraint("DistanceY", -1, 1, 0, 2, 14.763782),
])
pad8 = doc.addObject("PartDesign::Pad", "Pad007")
body3.addObject(pad8)
pad8.Profile = sketch10
pad8.setExpression("Length", "Params.pad8_length")
pad8.Reversed = True

doc.recompute()
